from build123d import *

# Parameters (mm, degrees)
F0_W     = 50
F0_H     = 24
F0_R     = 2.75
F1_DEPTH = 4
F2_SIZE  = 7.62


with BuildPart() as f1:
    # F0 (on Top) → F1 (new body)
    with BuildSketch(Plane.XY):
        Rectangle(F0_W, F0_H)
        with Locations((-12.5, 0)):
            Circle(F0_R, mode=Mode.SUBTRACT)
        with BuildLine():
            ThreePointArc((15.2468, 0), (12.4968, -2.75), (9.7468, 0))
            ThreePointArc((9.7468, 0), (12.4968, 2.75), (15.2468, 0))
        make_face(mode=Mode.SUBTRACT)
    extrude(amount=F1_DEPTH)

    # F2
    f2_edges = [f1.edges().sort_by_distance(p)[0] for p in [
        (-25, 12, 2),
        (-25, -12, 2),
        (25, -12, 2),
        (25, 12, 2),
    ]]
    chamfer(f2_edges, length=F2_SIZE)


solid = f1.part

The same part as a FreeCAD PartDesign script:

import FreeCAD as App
import Part
import Sketcher
Q = App.Units.Quantity


def edges_at(feature, points):
    """Names of the edges that pass closest to the given points."""
    edges = feature.Shape.Edges
    near = lambda p: min(range(len(edges)), key=lambda i: edges[i].distToShape(Part.Vertex(*p))[0])
    return sorted({f"Edge{near(p) + 1}" for p in points})


def add_polygon(sketch, points):
    """Adds a closed chain of lines whose ends are joined by coincident constraints."""
    first, n = sketch.GeometryCount, len(points)
    for a, b in zip(points, points[1:] + points[:1]):
        sketch.addGeometry(Part.LineSegment(App.Vector(*a, 0), App.Vector(*b, 0)), False)
    for i in range(n):
        sketch.addConstraint(Sketcher.Constraint("Coincident", first + i, 2, first + (i + 1) % n, 1))

doc = App.newDocument("Part")
body = doc.addObject("PartDesign::Body", "Body")

# Sketch on XY plane
sketch1 = body.newObject("Sketcher::SketchObject", "Sketch")
sketch1.AttachmentSupport = (doc.getObject("XY_Plane"), [""])
sketch1.MapMode = "FlatFace"
add_polygon(sketch1, [(-25, 12), (-25, -12), (25, -12), (25, 12)])  # lines 0-3
sketch1.addGeometry(Part.Circle(App.Vector(-12.5, 0, 0), App.Vector(0, 0, 1), 2.8), False)  # 4
sketch1.addGeometry(Part.Circle(App.Vector(12.5, 0, 0), App.Vector(0, 0, 1), 2.8), False)  # 5
sketch1.addConstraint(Sketcher.Constraint("Vertical", 0))
sketch1.addConstraint(Sketcher.Constraint("Horizontal", 1))
sketch1.addConstraint(Sketcher.Constraint("Vertical", 2))
sketch1.addConstraint(Sketcher.Constraint("Horizontal", 3))
sketch1.addConstraint(Sketcher.Constraint("Equal", 4, 5))
sketch1.addConstraint(Sketcher.Constraint("Symmetric", 0, 2, 2, 2, -1, 1))
sketch1.addConstraint(Sketcher.Constraint("PointOnObject", 4, 3, -1))
sketch1.addConstraint(Sketcher.Constraint("PointOnObject", 5, 3, -1))
sketch1.addConstraint(Sketcher.Constraint("Diameter", 4, Q("5.5 mm")))
sketch1.addConstraint(Sketcher.Constraint("DistanceX", 1, 1, 1, 2, Q("50 mm")))
sketch1.addConstraint(Sketcher.Constraint("DistanceY", 0, 2, 0, 1, Q("24 mm")))
sketch1.addConstraint(Sketcher.Constraint("DistanceX", 4, 3, -1, 1, Q("12.5 mm")))
sketch1.addConstraint(Sketcher.Constraint("DistanceX", -1, 1, 5, 3, Q("12.4968 mm")))
pad1 = body.newObject("PartDesign::Pad", "Pad")
pad1.Profile = sketch1
pad1.Length = 4
doc.recompute()

chamfer = body.newObject("PartDesign::Chamfer", "Chamfer")
chamfer.Base = (pad1, edges_at(pad1, [
    (-25, 12, 2),
    (-25, -12, 2),
    (25, -12, 2),
    (25, 12, 2),
]))
chamfer.Size = 7.62

doc.recompute()
